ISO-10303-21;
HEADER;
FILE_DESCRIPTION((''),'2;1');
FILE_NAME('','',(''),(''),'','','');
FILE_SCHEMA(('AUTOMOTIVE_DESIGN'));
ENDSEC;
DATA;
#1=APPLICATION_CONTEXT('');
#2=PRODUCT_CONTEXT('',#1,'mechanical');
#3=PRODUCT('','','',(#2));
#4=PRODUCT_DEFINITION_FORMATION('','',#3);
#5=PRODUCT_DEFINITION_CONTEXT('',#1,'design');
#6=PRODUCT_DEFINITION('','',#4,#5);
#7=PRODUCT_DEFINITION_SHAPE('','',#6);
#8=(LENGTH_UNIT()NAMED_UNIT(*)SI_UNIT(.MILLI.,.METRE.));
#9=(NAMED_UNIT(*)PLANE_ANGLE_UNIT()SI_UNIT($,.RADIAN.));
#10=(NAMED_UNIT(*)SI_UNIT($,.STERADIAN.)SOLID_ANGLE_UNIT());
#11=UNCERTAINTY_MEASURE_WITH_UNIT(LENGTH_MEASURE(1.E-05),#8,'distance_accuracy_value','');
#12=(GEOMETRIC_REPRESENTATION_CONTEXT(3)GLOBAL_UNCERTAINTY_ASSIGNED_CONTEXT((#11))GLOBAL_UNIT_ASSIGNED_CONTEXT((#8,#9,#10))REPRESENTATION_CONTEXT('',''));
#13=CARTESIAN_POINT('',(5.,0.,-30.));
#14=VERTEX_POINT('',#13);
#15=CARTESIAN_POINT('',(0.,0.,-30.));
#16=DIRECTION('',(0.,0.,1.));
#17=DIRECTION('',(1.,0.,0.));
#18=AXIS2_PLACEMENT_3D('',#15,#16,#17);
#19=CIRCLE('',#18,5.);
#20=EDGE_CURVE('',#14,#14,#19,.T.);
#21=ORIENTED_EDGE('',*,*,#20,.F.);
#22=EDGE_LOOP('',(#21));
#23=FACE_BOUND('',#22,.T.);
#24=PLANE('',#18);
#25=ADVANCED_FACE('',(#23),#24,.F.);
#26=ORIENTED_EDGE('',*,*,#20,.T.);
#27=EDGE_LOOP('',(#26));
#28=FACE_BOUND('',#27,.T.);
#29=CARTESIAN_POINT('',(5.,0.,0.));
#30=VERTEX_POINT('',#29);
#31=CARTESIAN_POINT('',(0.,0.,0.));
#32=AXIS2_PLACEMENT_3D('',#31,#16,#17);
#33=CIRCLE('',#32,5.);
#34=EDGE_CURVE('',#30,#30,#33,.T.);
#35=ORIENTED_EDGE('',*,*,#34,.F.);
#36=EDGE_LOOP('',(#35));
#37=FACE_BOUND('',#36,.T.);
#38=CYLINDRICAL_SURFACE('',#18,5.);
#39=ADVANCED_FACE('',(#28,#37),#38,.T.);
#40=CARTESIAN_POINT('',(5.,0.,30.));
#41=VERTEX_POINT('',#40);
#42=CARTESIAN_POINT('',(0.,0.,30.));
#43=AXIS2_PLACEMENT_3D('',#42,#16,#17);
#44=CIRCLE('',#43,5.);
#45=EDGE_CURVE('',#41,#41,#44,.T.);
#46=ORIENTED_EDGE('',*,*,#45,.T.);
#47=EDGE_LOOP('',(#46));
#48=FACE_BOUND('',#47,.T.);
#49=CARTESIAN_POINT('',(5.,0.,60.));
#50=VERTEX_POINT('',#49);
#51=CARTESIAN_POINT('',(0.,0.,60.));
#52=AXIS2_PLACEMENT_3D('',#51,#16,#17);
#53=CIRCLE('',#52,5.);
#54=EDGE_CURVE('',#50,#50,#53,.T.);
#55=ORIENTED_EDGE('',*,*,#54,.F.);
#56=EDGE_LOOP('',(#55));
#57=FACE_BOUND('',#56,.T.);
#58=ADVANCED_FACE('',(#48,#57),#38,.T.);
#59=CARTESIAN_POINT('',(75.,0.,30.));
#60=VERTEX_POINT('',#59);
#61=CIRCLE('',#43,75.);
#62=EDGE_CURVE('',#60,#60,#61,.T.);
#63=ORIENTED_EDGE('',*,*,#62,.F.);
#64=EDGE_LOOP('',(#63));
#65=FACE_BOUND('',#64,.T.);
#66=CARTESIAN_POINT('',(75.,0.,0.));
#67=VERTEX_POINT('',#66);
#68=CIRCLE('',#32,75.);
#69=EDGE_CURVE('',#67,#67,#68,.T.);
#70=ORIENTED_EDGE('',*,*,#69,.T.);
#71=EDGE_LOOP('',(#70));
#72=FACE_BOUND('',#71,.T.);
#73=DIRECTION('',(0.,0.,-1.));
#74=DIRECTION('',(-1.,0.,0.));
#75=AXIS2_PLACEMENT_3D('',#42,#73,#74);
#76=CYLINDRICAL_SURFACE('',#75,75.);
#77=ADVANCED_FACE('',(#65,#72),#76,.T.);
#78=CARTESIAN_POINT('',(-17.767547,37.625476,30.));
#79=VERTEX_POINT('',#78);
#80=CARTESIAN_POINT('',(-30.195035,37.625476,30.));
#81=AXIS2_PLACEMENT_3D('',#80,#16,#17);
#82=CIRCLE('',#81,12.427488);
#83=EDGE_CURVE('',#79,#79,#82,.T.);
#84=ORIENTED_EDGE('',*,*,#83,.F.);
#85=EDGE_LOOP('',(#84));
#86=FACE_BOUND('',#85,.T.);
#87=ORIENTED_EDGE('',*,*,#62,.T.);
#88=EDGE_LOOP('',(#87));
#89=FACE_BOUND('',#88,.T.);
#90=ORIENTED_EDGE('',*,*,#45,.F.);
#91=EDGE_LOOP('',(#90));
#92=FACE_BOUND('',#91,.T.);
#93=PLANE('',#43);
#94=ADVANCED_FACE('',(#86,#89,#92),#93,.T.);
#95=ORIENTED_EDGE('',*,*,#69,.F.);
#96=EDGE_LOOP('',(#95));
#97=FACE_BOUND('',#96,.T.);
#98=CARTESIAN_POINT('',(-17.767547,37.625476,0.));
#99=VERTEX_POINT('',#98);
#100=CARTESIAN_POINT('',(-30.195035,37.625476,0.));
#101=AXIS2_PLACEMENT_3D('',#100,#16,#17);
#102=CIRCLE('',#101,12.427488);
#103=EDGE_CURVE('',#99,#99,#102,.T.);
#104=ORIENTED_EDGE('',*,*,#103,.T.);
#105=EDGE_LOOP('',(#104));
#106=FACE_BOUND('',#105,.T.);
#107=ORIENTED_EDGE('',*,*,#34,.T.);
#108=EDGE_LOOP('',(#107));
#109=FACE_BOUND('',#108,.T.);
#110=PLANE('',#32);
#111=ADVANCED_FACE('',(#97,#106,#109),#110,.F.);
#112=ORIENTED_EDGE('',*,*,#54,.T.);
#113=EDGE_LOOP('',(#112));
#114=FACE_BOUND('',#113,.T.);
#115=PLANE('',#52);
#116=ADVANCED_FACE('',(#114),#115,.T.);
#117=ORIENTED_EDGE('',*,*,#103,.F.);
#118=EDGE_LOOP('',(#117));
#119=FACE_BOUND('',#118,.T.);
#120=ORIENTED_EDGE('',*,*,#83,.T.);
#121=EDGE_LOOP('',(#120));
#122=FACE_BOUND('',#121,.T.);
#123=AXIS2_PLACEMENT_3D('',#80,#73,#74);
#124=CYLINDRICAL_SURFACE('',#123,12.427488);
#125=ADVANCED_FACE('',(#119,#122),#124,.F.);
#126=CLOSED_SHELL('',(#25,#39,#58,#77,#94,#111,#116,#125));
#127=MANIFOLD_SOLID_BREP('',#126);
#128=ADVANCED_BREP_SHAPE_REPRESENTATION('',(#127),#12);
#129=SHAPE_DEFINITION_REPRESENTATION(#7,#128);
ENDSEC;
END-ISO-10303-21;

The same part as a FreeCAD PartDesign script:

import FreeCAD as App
import Part
import Sketcher

doc = App.newDocument("Part")
params = doc.addObject("Spreadsheet::Sheet", "Params")
for row, (alias, value) in enumerate([
    ("sketch1_diameter", "150 mm"),
    ("sketch1_diameter2", "10 mm"),
    ("pad1_length", "30 mm"),
    ("sketch2_diameter", "10 mm"),
    ("pad2_length", "30 mm"),
    ("pad2_length2", "60 mm"),
], start=1):
    params.set(f"A{row}", alias)
    params.set(f"B{row}", "=" + value)
    params.setAlias(f"B{row}", alias)

body = doc.addObject("PartDesign::Body", "Body")

sketch1 = body.newObject("Sketcher::SketchObject", "Sketch")
sketch1.AttachmentSupport = (doc.getObject("XY_Plane"), [""])
sketch1.MapMode = "FlatFace"
sketch1.addGeometry(Part.Circle(App.Vector(0, 0, 0), App.Vector(0, 0, 1), 75), False)
sketch1.addGeometry(Part.Circle(App.Vector(0, 0, 0), App.Vector(0, 0, 1), 5), False)
sketch1.addGeometry(Part.Circle(App.Vector(-30.195035, 37.625476, 0), App.Vector(0, 0, 1), 12.427488), False)
sketch1.addConstraint(Sketcher.Constraint("Coincident", 0, 3, -1, 1))
sketch1.addConstraint(Sketcher.Constraint("Coincident", 1, 3, -1, 1))
sketch1.addConstraint(Sketcher.Constraint("Diameter", 0, 150.0))
sketch1.addConstraint(Sketcher.Constraint("Diameter", 1, 10.0))
sketch1.addConstraint(Sketcher.Constraint("Diameter", 2, 24.854977))
sketch1.addConstraint(Sketcher.Constraint("DistanceX", 2, 3, -1, 1, 30.195035))
sketch1.addConstraint(Sketcher.Constraint("DistanceY", -1, 1, 2, 3, 37.625476))
sketch1.setExpression("Constraints[2]", "Params.sketch1_diameter")
sketch1.setExpression("Constraints[3]", "Params.sketch1_diameter2")
pad1 = body.newObject("PartDesign::Pad", "Pad")
pad1.Profile = sketch1
pad1.setExpression("Length", "Params.pad1_length")

sketch2 = body.newObject("Sketcher::SketchObject", "Sketch001")
sketch2.AttachmentSupport = (doc.getObject("XY_Plane"), [""])
sketch2.MapMode = "FlatFace"
sketch2.AttachmentOffset = App.Placement(App.Vector(0, 0, 30), App.Rotation())
sketch2.addGeometry(Part.Circle(App.Vector(0, 0, 0), App.Vector(0, 0, 1), 5), False)
sketch2.addConstraint(Sketcher.Constraint("Coincident", 0, 3, -1, 1))
sketch2.addConstraint(Sketcher.Constraint("Diameter", 0, 10.0))
sketch2.setExpression("Constraints[1]", "Params.sketch2_diameter")
pad2 = body.newObject("PartDesign::Pad", "Pad001")
pad2.Profile = sketch2
pad2.Type = "TwoLengths"
pad2.setExpression("Length", "Params.pad2_length")
pad2.setExpression("Length2", "Params.pad2_length2")

doc.recompute()
